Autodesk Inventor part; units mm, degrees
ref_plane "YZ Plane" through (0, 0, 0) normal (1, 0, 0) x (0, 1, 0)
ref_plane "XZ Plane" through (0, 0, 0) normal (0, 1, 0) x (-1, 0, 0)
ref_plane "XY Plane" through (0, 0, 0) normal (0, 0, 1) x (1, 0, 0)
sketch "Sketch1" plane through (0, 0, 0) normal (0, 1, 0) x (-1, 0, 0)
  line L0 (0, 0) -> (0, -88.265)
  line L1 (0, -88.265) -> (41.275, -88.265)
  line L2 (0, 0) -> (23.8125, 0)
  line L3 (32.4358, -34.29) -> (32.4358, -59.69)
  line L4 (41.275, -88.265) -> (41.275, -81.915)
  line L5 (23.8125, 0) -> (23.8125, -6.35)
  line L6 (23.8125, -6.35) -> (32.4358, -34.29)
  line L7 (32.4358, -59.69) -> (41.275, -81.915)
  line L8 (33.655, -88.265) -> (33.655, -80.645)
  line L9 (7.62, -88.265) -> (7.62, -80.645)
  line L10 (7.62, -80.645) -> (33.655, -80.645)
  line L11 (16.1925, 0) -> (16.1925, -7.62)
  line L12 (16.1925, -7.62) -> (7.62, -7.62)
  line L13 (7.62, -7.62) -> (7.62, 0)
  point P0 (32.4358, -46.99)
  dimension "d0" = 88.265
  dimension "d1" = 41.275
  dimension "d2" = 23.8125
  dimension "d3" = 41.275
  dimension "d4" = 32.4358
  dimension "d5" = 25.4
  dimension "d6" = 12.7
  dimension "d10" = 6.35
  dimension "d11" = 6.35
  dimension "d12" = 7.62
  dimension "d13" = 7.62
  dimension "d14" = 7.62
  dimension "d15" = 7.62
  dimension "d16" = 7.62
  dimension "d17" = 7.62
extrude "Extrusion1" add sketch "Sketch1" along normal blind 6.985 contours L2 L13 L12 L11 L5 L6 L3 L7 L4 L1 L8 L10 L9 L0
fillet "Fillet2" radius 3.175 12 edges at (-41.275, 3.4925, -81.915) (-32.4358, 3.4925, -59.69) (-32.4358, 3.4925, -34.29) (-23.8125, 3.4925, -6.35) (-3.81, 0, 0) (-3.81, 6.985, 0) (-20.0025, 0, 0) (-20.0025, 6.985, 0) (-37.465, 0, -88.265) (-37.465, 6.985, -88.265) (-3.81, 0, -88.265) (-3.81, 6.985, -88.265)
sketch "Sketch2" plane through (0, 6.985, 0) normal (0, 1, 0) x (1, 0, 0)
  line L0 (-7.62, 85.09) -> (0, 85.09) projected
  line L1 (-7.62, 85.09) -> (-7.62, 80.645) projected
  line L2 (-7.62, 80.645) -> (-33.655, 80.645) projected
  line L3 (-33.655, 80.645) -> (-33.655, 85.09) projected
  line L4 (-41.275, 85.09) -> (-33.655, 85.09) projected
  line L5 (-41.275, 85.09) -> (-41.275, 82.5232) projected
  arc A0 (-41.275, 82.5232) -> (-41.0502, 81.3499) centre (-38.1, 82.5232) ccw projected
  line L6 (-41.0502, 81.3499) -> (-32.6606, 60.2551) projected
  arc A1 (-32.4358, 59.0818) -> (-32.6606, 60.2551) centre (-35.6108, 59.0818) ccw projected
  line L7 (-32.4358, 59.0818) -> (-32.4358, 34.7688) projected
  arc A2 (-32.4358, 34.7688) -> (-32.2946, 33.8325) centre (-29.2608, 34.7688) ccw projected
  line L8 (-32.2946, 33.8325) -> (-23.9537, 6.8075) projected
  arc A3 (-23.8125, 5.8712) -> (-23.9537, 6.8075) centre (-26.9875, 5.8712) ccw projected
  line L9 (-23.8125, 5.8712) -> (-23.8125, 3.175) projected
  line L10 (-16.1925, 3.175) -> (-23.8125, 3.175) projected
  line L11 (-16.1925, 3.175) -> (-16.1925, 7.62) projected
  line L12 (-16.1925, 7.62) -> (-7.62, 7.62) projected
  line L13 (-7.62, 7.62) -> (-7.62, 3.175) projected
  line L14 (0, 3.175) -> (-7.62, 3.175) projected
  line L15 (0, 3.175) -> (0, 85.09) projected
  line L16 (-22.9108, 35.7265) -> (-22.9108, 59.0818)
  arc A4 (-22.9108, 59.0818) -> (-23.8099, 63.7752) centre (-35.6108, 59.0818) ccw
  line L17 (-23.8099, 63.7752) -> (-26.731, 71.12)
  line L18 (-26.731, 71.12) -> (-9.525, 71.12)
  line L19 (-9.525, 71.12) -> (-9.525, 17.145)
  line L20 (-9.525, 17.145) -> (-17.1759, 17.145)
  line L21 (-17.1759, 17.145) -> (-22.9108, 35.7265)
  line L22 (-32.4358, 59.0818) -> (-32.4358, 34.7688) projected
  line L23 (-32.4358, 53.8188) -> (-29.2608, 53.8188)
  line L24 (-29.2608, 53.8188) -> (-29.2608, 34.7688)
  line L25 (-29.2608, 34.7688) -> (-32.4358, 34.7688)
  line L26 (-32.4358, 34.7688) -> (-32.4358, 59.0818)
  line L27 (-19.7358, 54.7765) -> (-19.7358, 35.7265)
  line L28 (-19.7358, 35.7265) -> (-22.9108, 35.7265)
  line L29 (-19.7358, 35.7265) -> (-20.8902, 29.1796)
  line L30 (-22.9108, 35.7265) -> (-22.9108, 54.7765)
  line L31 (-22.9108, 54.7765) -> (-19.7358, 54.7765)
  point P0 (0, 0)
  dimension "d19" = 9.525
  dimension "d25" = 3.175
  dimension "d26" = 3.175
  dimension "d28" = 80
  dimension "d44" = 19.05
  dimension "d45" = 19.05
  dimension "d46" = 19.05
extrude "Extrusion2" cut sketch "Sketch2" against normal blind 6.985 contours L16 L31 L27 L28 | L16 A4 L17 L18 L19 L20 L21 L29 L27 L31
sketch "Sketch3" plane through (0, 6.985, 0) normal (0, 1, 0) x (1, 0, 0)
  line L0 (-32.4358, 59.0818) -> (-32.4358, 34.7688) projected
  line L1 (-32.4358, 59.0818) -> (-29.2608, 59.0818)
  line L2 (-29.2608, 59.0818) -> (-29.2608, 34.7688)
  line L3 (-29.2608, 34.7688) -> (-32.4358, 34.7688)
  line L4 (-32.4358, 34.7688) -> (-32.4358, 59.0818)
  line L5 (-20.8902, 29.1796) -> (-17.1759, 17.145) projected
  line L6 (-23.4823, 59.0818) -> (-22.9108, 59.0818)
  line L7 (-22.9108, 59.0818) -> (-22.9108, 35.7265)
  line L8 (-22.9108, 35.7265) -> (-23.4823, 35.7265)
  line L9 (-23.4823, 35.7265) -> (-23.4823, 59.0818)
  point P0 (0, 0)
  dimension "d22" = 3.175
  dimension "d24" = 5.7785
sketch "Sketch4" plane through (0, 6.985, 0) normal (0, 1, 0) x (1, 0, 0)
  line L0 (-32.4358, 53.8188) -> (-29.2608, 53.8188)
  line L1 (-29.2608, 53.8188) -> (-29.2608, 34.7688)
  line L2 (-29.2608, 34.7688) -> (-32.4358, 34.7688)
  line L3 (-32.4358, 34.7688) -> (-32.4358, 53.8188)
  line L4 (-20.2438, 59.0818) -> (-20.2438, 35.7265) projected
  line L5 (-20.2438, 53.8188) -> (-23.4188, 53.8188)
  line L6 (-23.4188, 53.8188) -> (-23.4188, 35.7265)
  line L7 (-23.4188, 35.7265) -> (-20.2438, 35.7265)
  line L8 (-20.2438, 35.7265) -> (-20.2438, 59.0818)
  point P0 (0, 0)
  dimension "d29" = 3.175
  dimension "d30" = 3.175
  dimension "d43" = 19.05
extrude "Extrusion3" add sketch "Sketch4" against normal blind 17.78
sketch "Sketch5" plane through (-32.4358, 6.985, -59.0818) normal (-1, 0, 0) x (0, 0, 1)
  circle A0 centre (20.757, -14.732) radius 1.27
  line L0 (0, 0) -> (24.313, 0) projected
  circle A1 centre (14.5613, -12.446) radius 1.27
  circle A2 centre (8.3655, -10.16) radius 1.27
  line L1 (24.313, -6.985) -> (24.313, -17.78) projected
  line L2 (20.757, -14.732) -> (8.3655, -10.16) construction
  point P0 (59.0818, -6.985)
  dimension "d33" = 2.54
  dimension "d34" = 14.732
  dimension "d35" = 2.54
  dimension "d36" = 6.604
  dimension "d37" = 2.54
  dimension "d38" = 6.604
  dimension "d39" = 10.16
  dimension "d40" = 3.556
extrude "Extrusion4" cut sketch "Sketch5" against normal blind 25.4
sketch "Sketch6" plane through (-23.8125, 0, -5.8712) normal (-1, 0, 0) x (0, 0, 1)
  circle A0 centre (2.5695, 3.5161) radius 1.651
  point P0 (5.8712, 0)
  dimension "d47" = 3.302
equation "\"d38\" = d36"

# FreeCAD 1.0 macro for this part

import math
import FreeCAD as App
import Part
import Sketcher
from FreeCAD import Vector
Q = App.Units.Quantity


def edges_at(feature, points):
    """Names of the edges that pass closest to the given points."""
    edges = feature.Shape.Edges
    near = lambda p: min(range(len(edges)), key=lambda i: edges[i].distToShape(Part.Vertex(*p))[0])
    return sorted({f"Edge{near(p) + 1}" for p in points})


def add_polygon(sketch, points):
    """Adds a closed chain of lines whose ends are joined by coincident constraints."""
    first, n = sketch.GeometryCount, len(points)
    for a, b in zip(points, points[1:] + points[:1]):
        sketch.addGeometry(Part.LineSegment(App.Vector(*a, 0), App.Vector(*b, 0)), False)
    for i in range(n):
        sketch.addConstraint(Sketcher.Constraint("Coincident", first + i, 2, first + (i + 1) % n, 1))

doc = App.newDocument("Part")
params = doc.addObject("Spreadsheet::Sheet", "Params")
for row, (alias, value) in enumerate([
    ("sketch1_height", "1 in"),
    ("sketch1_width", "0.3 in"),
    ("sketch1_height2", "0.25 in"),
    ("sketch1_height3", "3.475 in"),
    ("pad1_length", "0.275 in"),
    ("fillet_radius", "0.125 in"),
    ("sketch2_radius", "0.5 in"),
    ("sketch2_width", "0.125 in"),
    ("sketch2_height", "2.125 in"),
    ("pocket1_length", "0.275 in"),
    ("sketch3_height", "0.75 in"),
    ("sketch3_width", "0.125 in"),
    ("pad2_length", "0.7 in"),
    ("sketch4_diameter", "0.1 in"),
    ("pocket2_length", "1 in"),
], start=1):
    params.set(f"A{row}", alias)
    params.set(f"B{row}", "=" + value)
    params.setAlias(f"B{row}", alias)

body = doc.addObject("PartDesign::Body", "Body")

# Sketch on XZ plane
sketch1 = doc.addObject("Sketcher::SketchObject", "Sketch")
body.addObject(sketch1)
sketch1.AttachmentSupport = (doc.XZ_Plane, [""])
sketch1.MapMode = "FlatFace"
add_polygon(sketch1, [(-8, 0), (0, 0), (0, -88), (-8, -88), (-8, -81), (-34, -81), (-34, -88), (-41, -88), (-41, -82), (-32, -60), (-32, -34), (-24, -6), (-24, 0), (-16, 0), (-16, -8), (-8, -8)])  # lines 0-15
sketch1.addConstraint([
    Sketcher.Constraint("Horizontal", 0),
    Sketcher.Constraint("Vertical", 1),
    Sketcher.Constraint("Horizontal", 2),
    Sketcher.Constraint("Vertical", 3),
    Sketcher.Constraint("Horizontal", 4),
    Sketcher.Constraint("Vertical", 5),
    Sketcher.Constraint("Horizontal", 6),
    Sketcher.Constraint("Vertical", 7),
    Sketcher.Constraint("Vertical", 9),
    Sketcher.Constraint("Vertical", 11),
    Sketcher.Constraint("Horizontal", 12),
    Sketcher.Constraint("Vertical", 13),
    Sketcher.Constraint("Horizontal", 14),
    Sketcher.Constraint("Vertical", 15),
    Sketcher.Constraint("Coincident", 0, 2, -1, 1),
    Sketcher.Constraint("PointOnObject", 11, 2, -1),
    Sketcher.Constraint("Horizontal", 2, 2, 5, 2),
    Sketcher.Constraint("Vertical", 3, 2, 14, 2),
    Sketcher.Constraint("Equal", 2, 6),
    Sketcher.Constraint("Equal", 6, 12),
    Sketcher.Constraint("Equal", 12, 3),
    Sketcher.Constraint("Equal", 7, 11),
    Sketcher.Constraint("Equal", 5, 13),
    Sketcher.Constraint("DistanceY", 9, 1, 9, 2, Q("1 in")),
    Sketcher.Constraint("DistanceX", 0, 1, 0, 2, Q("0.3 in")),
    Sketcher.Constraint("DistanceY", 7, 1, 7, 2, Q("0.25 in")),
    Sketcher.Constraint("DistanceY", 1, 2, 1, 1, Q("3.475 in")),
    Sketcher.Constraint("DistanceX", 6, 2, -1, 1, Q("1.625 in")),
    Sketcher.Constraint("DistanceX", 8, 2, -1, 1, Q("1.277 in")),
    Sketcher.Constraint("DistanceX", 10, 2, -1, 1, Q("0.9375 in")),
    Sketcher.Constraint("DistanceY", 9, 2, 10, 2, Q("1.1 in")),
])
sketch1.setExpression("Constraints[39]", "Params.sketch1_height")
sketch1.setExpression("Constraints[40]", "Params.sketch1_width")
sketch1.setExpression("Constraints[41]", "Params.sketch1_height2")
sketch1.setExpression("Constraints[42]", "Params.sketch1_height3")
pad1 = doc.addObject("PartDesign::Pad", "Pad")
body.addObject(pad1)
pad1.Profile = sketch1
pad1.setExpression("Length", "Params.pad1_length")
pad1.Reversed = True
doc.recompute()

fillet = doc.addObject("PartDesign::Fillet", "Fillet")
body.addObject(fillet)
fillet.Base = (pad1, edges_at(pad1, [
    (-41.275, 3.493, -81.915),
    (-32.436, 3.493, -59.69),
    (-32.436, 3.493, -34.29),
    (-23.812, 3.493, -6.35),
    (-3.81, 0, 0),
    (-3.81, 6.985, 0),
    (-20.003, 0, 0),
    (-20.003, 6.985, 0),
    (-37.465, 0, -88.265),
    (-37.465, 6.985, -88.265),
    (-3.81, 0, -88.265),
    (-3.81, 6.985, -88.265),
]))
fillet.setExpression("Radius", "Params.fillet_radius")

# Sketch on XZ plane
sketch2 = doc.addObject("Sketcher::SketchObject", "Sketch001")
body.addObject(sketch2)
sketch2.AttachmentSupport = (doc.XZ_Plane, [""])
sketch2.MapMode = "FlatFace"
sketch2.AttachmentOffset = App.Placement(Vector(0, 0, -0.275 * 25.4), App.Rotation())
sketch2.addGeometry([
    Part.LineSegment(Vector(-22.9, -35.7, 0), Vector(-19.7, -35.7, 0)),  # 0
    Part.LineSegment(Vector(-19.7, -35.7, 0), Vector(-20.9, -29.2, 0)),  # 1
    Part.LineSegment(Vector(-20.9, -29.2, 0), Vector(-17.2, -17.1, 0)),  # 2
    Part.LineSegment(Vector(-17.2, -17.1, 0), Vector(-9.5, -17.1, 0)),  # 3
    Part.LineSegment(Vector(-9.5, -17.1, 0), Vector(-9.5, -71.1, 0)),  # 4
    Part.LineSegment(Vector(-9.5, -71.1, 0), Vector(-26.7, -71.1, 0)),  # 5
    Part.LineSegment(Vector(-26.7, -71.1, 0), Vector(-23.8, -63.8, 0)),  # 6
    Part.ArcOfCircle(Part.Circle(Vector(-35.6, -59.1, 0), Vector(0, 0, 1), 12.7), math.radians(-22), math.radians(0)),  # 7
    Part.LineSegment(Vector(-22.9, -59.1, 0), Vector(-22.9, -35.7, 0)),  # 8
], False)
sketch2.addConstraint([
    Sketcher.Constraint("Coincident", 0, 2, 1, 1),
    Sketcher.Constraint("Coincident", 1, 2, 2, 1),
    Sketcher.Constraint("Coincident", 2, 2, 3, 1),
    Sketcher.Constraint("Coincident", 3, 2, 4, 1),
    Sketcher.Constraint("Coincident", 4, 2, 5, 1),
    Sketcher.Constraint("Coincident", 5, 2, 6, 1),
    Sketcher.Constraint("Tangent", 6, 2, 7, 1),
    Sketcher.Constraint("Tangent", 7, 2, 8, 1),
    Sketcher.Constraint("Coincident", 8, 2, 0, 1),
    Sketcher.Constraint("Horizontal", 0),
    Sketcher.Constraint("Horizontal", 3),
    Sketcher.Constraint("Vertical", 4),
    Sketcher.Constraint("Horizontal", 5),
    Sketcher.Constraint("Vertical", 8),
    Sketcher.Constraint("Radius", 7, Q("0.5 in")),
    Sketcher.Constraint("DistanceX", 0, 1, 0, 2, Q("0.125 in")),
    Sketcher.Constraint("DistanceX", 3, 2, -1, 1, Q("0.375 in")),
    Sketcher.Constraint("Angle", 1, Q("100 deg")),
    Sketcher.Constraint("DistanceY", 4, 2, -1, 1, Q("2.8 in")),
    Sketcher.Constraint("DistanceY", 4, 2, 4, 1, Q("2.125 in")),
    Sketcher.Constraint("DistanceX", 5, 2, 5, 1, Q("0.6774 in")),
    Sketcher.Constraint("DistanceY", 8, 1, 8, 2, Q("0.9195 in")),
    Sketcher.Constraint("DistanceX", 7, 3, -1, 1, Q("1.402 in")),
    Sketcher.Constraint("DistanceX", 5, 2, 6, 2, Q("0.115 in")),
    Sketcher.Constraint("DistanceX", 3, 1, 3, 2, Q("7.651 mm")),
    Sketcher.Constraint("DistanceY", 1, 2, -1, 1, Q("1.1488 in")),
])
sketch2.setExpression("Constraints[14]", "Params.sketch2_radius")
sketch2.setExpression("Constraints[15]", "Params.sketch2_width")
sketch2.setExpression("Constraints[19]", "Params.sketch2_height")
pocket1 = doc.addObject("PartDesign::Pocket", "Pocket")
body.addObject(pocket1)
pocket1.Profile = sketch2
pocket1.setExpression("Length", "Params.pocket1_length")
pocket1.Reversed = True

# Sketch on XZ plane
sketch3 = doc.addObject("Sketcher::SketchObject", "Sketch002")
body.addObject(sketch3)
sketch3.AttachmentSupport = (doc.XZ_Plane, [""])
sketch3.MapMode = "FlatFace"
sketch3.AttachmentOffset = App.Placement(Vector(0, 0, -0.275 * 25.4), App.Rotation())
add_polygon(sketch3, [(-29.3, -53.8), (-32.4, -53.8), (-32.4, -34.8), (-29.3, -34.8)])  # lines 0-3
add_polygon(sketch3, [(-20.2, -35.7), (-20.2, -53.8), (-23.4, -53.8), (-23.4, -35.7)])  # lines 4-7
sketch3.addConstraint([
    Sketcher.Constraint("Horizontal", 0),
    Sketcher.Constraint("Vertical", 1),
    Sketcher.Constraint("Horizontal", 2),
    Sketcher.Constraint("Vertical", 3),
    Sketcher.Constraint("Vertical", 4),
    Sketcher.Constraint("Horizontal", 5),
    Sketcher.Constraint("Vertical", 6),
    Sketcher.Constraint("Horizontal", 7),
    Sketcher.Constraint("Horizontal", 3, 2, 4, 2),
    Sketcher.Constraint("Equal", 2, 5),
    Sketcher.Constraint("DistanceY", 1, 1, 1, 2, Q("0.75 in")),
    Sketcher.Constraint("DistanceX", 0, 2, 0, 1, Q("0.125 in")),
    Sketcher.Constraint("DistanceX", 0, 2, 4, 2, Q("0.48 in")),
    Sketcher.Constraint("DistanceY", 4, 2, 4, 1, Q("0.7123 in")),
    Sketcher.Constraint("DistanceX", 0, 2, -1, 1, Q("1.277 in")),
    Sketcher.Constraint("DistanceY", 0, 2, -1, 1, Q("53.8188 mm")),
])
sketch3.setExpression("Constraints[18]", "Params.sketch3_height")
sketch3.setExpression("Constraints[19]", "Params.sketch3_width")
pad2 = doc.addObject("PartDesign::Pad", "Pad001")
body.addObject(pad2)
pad2.Profile = sketch3
pad2.setExpression("Length", "Params.pad2_length")

# Sketch on YZ plane
sketch4 = doc.addObject("Sketcher::SketchObject", "Sketch003")
body.addObject(sketch4)
sketch4.AttachmentSupport = (doc.YZ_Plane, [""])
sketch4.MapMode = "FlatFace"
sketch4.AttachmentOffset = App.Placement(Vector(0, 0, -1.277 * 25.4), App.Rotation())
sketch4.addGeometry([
    Part.Circle(Vector(-7.7, -38.3, 0), Vector(0, 0, 1), 1.3),
    Part.Circle(Vector(-5.5, -44.5, 0), Vector(0, 0, 1), 1.3),
    Part.Circle(Vector(-3.2, -50.7, 0), Vector(0, 0, 1), 1.3),
], False)
sketch4.addConstraint([
    Sketcher.Constraint("Equal", 0, 1),
    Sketcher.Constraint("Equal", 1, 2),
    Sketcher.Constraint("Diameter", 0, Q("0.1 in")),
    Sketcher.Constraint("DistanceX", 0, 3, 1, 3, Q("0.09 in")),
    Sketcher.Constraint("DistanceX", 1, 3, 2, 3, Q("0.09 in")),
    Sketcher.Constraint("DistanceX", 0, 3, -1, 1, Q("0.305 in")),
    Sketcher.Constraint("DistanceY", 2, 3, -1, 1, Q("1.9967 in")),
    Sketcher.Constraint("DistanceY", 0, 3, -1, 1, Q("38.3248 mm")),
    Sketcher.Constraint("DistanceY", 1, 3, -1, 1, Q("44.5205 mm")),
])
sketch4.setExpression("Constraints[2]", "Params.sketch4_diameter")
pocket2 = doc.addObject("PartDesign::Pocket", "Pocket001")
body.addObject(pocket2)
pocket2.Profile = sketch4
pocket2.setExpression("Length", "Params.pocket2_length")
pocket2.Reversed = True

doc.recompute()
